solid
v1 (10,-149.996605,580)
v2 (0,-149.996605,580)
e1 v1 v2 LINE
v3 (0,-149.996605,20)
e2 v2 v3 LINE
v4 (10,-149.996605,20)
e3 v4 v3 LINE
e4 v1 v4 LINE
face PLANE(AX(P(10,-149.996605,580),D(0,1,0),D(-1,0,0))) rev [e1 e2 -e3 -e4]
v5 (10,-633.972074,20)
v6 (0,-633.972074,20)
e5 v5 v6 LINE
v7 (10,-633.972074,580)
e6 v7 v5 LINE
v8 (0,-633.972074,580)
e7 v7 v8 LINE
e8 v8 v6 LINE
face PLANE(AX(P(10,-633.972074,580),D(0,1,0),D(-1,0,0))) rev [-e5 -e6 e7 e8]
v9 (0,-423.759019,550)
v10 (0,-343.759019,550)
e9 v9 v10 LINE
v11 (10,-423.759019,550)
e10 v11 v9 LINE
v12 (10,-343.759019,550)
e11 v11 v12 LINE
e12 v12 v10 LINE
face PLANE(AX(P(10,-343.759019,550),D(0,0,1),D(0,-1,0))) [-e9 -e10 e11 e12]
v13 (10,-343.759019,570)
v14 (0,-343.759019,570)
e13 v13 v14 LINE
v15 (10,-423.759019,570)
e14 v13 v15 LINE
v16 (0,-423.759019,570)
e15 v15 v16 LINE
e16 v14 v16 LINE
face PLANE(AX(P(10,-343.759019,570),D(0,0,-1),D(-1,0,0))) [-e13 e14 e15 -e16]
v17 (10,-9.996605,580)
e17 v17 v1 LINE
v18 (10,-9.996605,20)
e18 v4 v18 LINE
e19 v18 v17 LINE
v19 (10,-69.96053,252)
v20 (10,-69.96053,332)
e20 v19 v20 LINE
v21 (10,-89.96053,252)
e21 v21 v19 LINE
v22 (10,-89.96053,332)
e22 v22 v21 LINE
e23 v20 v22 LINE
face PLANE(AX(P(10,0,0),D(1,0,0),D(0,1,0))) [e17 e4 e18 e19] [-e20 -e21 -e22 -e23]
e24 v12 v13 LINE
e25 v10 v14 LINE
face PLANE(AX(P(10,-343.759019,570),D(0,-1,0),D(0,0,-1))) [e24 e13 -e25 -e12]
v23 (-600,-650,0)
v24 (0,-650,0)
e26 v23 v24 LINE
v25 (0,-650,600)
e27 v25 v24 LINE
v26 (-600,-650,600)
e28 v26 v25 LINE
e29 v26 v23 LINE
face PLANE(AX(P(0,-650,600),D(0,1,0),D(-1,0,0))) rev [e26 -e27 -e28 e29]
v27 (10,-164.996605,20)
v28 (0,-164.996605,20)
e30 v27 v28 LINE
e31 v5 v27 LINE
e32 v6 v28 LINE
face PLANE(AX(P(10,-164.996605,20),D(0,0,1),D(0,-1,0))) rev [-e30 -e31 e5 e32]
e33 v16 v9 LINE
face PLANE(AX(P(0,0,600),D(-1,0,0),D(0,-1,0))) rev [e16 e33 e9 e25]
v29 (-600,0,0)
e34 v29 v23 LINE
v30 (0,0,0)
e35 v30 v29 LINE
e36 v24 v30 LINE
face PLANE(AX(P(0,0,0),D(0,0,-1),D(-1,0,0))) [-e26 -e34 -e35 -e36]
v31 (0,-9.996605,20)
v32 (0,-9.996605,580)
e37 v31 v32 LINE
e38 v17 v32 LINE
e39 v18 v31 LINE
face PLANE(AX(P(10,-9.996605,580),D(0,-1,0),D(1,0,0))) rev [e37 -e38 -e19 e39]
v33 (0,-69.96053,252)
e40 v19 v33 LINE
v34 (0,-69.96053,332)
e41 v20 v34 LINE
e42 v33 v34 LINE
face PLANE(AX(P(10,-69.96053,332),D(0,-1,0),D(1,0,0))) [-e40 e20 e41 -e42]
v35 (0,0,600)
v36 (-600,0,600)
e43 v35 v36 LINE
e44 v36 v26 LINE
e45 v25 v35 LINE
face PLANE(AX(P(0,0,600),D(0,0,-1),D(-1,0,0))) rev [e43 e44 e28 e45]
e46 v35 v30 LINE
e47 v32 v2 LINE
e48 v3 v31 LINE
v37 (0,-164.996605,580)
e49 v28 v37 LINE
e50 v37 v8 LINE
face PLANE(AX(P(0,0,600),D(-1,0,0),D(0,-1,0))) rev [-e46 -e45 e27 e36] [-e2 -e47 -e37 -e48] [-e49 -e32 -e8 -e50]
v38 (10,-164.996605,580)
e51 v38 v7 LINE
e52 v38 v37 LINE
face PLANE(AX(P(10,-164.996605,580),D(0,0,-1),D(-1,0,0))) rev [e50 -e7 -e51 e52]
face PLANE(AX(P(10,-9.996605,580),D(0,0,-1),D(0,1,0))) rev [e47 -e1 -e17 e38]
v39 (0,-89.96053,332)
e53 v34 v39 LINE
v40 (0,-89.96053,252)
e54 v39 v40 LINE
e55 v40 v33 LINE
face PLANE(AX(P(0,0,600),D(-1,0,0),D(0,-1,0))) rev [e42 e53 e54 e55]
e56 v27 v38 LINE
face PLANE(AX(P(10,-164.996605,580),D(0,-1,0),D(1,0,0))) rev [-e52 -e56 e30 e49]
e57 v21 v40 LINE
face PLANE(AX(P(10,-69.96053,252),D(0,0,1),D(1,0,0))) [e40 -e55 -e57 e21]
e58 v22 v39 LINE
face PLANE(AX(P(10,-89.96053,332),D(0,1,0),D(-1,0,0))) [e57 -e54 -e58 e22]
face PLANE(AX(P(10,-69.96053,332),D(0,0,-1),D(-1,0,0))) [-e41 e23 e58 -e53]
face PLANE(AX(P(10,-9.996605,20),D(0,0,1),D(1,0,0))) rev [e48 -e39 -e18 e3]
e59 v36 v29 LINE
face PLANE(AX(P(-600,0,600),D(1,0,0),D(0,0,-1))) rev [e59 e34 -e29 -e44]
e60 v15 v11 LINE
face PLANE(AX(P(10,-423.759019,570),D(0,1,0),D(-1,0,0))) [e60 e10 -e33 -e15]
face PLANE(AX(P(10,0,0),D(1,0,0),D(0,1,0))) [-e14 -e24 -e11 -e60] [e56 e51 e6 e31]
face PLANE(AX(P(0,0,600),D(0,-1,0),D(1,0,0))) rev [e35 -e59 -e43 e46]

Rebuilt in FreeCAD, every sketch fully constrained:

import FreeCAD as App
import Part
import Sketcher

V = App.Vector
Q = App.Units.Quantity

doc = App.newDocument("Part")
params = doc.addObject("Spreadsheet::Sheet", "Params")
for row, (alias, value) in enumerate([
    ("sketch1_width", "600 mm"),
    ("sketch1_height", "650 mm"),
    ("pad1_length", "600 mm"),
    ("sketch2_width", "140 mm"),
    ("sketch2_width2", "20 mm"),
    ("sketch2_width3", "80 mm"),
    ("sketch2_height", "560 mm"),
    ("pad2_length", "10 mm"),
], start=1):
    params.set(f"A{row}", alias)
    params.set(f"B{row}", "=" + value)
    params.setAlias(f"B{row}", alias)

body = doc.addObject("PartDesign::Body", "Body")

# Sketch on XY plane
sketch1 = doc.addObject("Sketcher::SketchObject", "Sketch")
body.addObject(sketch1)
sketch1.AttachmentSupport = (doc.XY_Plane, [""])
sketch1.MapMode = "FlatFace"
sketch1.addGeometry([
    Part.LineSegment(V(-600, 0, 0), V(-600, -650, 0)),
    Part.LineSegment(V(-600, -650, 0), V(0, -650, 0)),
    Part.LineSegment(V(0, -650, 0), V(0, 0, 0)),
    Part.LineSegment(V(0, 0, 0), V(-600, 0, 0)),
], False)
sketch1.addConstraint([
    Sketcher.Constraint("Coincident", 0, 2, 1, 1),
    Sketcher.Constraint("Coincident", 1, 2, 2, 1),
    Sketcher.Constraint("Coincident", 2, 2, 3, 1),
    Sketcher.Constraint("Coincident", 3, 2, 0, 1),
    Sketcher.Constraint("Vertical", 0),
    Sketcher.Constraint("Horizontal", 1),
    Sketcher.Constraint("Vertical", 2),
    Sketcher.Constraint("Horizontal", 3),
    Sketcher.Constraint("Coincident", 2, 2, -1, 1),
    Sketcher.Constraint("DistanceX", 1, 1, 1, 2, Q("600 mm")),
    Sketcher.Constraint("DistanceY", 0, 2, 0, 1, Q("650 mm")),
])
sketch1.setExpression("Constraints[9]", "Params.sketch1_width")
sketch1.setExpression("Constraints[10]", "Params.sketch1_height")
pad1 = doc.addObject("PartDesign::Pad", "Pad")
body.addObject(pad1)
pad1.Profile = sketch1
pad1.setExpression("Length", "Params.pad1_length")

# Sketch on YZ plane
sketch2 = doc.addObject("Sketcher::SketchObject", "Sketch001")
body.addObject(sketch2)
sketch2.AttachmentSupport = (doc.YZ_Plane, [""])
sketch2.MapMode = "FlatFace"
sketch2.addGeometry([
    Part.LineSegment(V(-10, 580, 0), V(-150, 580, 0)),  # 0
    Part.LineSegment(V(-150, 580, 0), V(-150, 20, 0)),  # 1
    Part.LineSegment(V(-150, 20, 0), V(-10, 20, 0)),  # 2
    Part.LineSegment(V(-10, 20, 0), V(-10, 580, 0)),  # 3
    Part.LineSegment(V(-90, 252, 0), V(-90, 332, 0)),  # 4
    Part.LineSegment(V(-90, 332, 0), V(-70, 332, 0)),  # 5
    Part.LineSegment(V(-70, 332, 0), V(-70, 252, 0)),  # 6
    Part.LineSegment(V(-70, 252, 0), V(-90, 252, 0)),  # 7
    Part.LineSegment(V(-165, 580, 0), V(-634, 580, 0)),  # 8
    Part.LineSegment(V(-634, 580, 0), V(-634, 20, 0)),  # 9
    Part.LineSegment(V(-634, 20, 0), V(-165, 20, 0)),  # 10
    Part.LineSegment(V(-165, 20, 0), V(-165, 580, 0)),  # 11
    Part.LineSegment(V(-424, 550, 0), V(-424, 570, 0)),  # 12
    Part.LineSegment(V(-424, 570, 0), V(-344, 570, 0)),  # 13
    Part.LineSegment(V(-344, 570, 0), V(-344, 550, 0)),  # 14
    Part.LineSegment(V(-344, 550, 0), V(-424, 550, 0)),  # 15
], False)
sketch2.addConstraint([
    Sketcher.Constraint("Coincident", 0, 2, 1, 1),
    Sketcher.Constraint("Coincident", 1, 2, 2, 1),
    Sketcher.Constraint("Coincident", 2, 2, 3, 1),
    Sketcher.Constraint("Coincident", 3, 2, 0, 1),
    Sketcher.Constraint("Coincident", 4, 2, 5, 1),
    Sketcher.Constraint("Coincident", 5, 2, 6, 1),
    Sketcher.Constraint("Coincident", 6, 2, 7, 1),
    Sketcher.Constraint("Coincident", 7, 2, 4, 1),
    Sketcher.Constraint("Coincident", 8, 2, 9, 1),
    Sketcher.Constraint("Coincident", 9, 2, 10, 1),
    Sketcher.Constraint("Coincident", 10, 2, 11, 1),
    Sketcher.Constraint("Coincident", 11, 2, 8, 1),
    Sketcher.Constraint("Coincident", 12, 2, 13, 1),
    Sketcher.Constraint("Coincident", 13, 2, 14, 1),
    Sketcher.Constraint("Coincident", 14, 2, 15, 1),
    Sketcher.Constraint("Coincident", 15, 2, 12, 1),
    Sketcher.Constraint("Horizontal", 0),
    Sketcher.Constraint("Vertical", 1),
    Sketcher.Constraint("Horizontal", 2),
    Sketcher.Constraint("Vertical", 3),
    Sketcher.Constraint("Vertical", 4),
    Sketcher.Constraint("Horizontal", 5),
    Sketcher.Constraint("Vertical", 6),
    Sketcher.Constraint("Horizontal", 7),
    Sketcher.Constraint("Horizontal", 8),
    Sketcher.Constraint("Vertical", 9),
    Sketcher.Constraint("Horizontal", 10),
    Sketcher.Constraint("Vertical", 11),
    Sketcher.Constraint("Vertical", 12),
    Sketcher.Constraint("Horizontal", 13),
    Sketcher.Constraint("Vertical", 14),
    Sketcher.Constraint("Horizontal", 15),
    Sketcher.Constraint("Horizontal", 3, 2, 8, 2),
    Sketcher.Constraint("Horizontal", 2, 2, 9, 2),
    Sketcher.Constraint("Equal", 15, 4),
    Sketcher.Constraint("Equal", 7, 12),
    Sketcher.Constraint("DistanceX", 0, 2, 0, 1, Q("140 mm")),
    Sketcher.Constraint("DistanceX", 5, 1, 5, 2, Q("20 mm")),
    Sketcher.Constraint("DistanceX", 13, 1, 13, 2, Q("80 mm")),
    Sketcher.Constraint("DistanceY", 1, 2, 1, 1, Q("560 mm")),
    Sketcher.Constraint("DistanceY", -1, 1, 0, 2, Q("580 mm")),
    Sketcher.Constraint("DistanceY", -1, 1, 4, 2, Q("332 mm")),
    Sketcher.Constraint("DistanceY", -1, 1, 12, 2, Q("570 mm")),
    Sketcher.Constraint("DistanceX", 10, 2, 1, 2, Q("15 mm")),
    Sketcher.Constraint("DistanceX", 8, 2, 8, 1, Q("468.975469 mm")),
    Sketcher.Constraint("DistanceX", 4, 2, -1, 1, Q("89.96053 mm")),
    Sketcher.Constraint("DistanceX", 12, 2, -1, 1, Q("423.759019 mm")),
    Sketcher.Constraint("DistanceX", 0, 2, -1, 1, Q("149.996605 mm")),
])
sketch2.setExpression("Constraints[36]", "Params.sketch2_width")
sketch2.setExpression("Constraints[37]", "Params.sketch2_width2")
sketch2.setExpression("Constraints[38]", "Params.sketch2_width3")
sketch2.setExpression("Constraints[39]", "Params.sketch2_height")
pad2 = doc.addObject("PartDesign::Pad", "Pad001")
body.addObject(pad2)
pad2.Profile = sketch2
pad2.setExpression("Length", "Params.pad2_length")

doc.recompute()
